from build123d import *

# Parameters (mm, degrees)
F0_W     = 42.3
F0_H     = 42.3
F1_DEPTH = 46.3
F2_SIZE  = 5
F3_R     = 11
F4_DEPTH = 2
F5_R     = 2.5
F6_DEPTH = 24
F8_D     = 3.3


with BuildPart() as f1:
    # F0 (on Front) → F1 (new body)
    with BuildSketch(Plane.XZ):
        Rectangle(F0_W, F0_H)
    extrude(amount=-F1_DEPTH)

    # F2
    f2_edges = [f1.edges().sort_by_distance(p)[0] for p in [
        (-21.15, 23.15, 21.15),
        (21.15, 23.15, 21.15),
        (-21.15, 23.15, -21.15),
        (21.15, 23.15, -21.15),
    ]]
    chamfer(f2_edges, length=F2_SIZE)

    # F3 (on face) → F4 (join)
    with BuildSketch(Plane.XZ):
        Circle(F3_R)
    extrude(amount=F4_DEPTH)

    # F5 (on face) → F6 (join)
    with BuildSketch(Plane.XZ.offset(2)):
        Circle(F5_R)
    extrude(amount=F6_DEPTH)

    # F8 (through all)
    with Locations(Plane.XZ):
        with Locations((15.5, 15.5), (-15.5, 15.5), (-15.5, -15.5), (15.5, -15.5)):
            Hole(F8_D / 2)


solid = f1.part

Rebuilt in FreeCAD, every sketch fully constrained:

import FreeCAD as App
import Part
import Sketcher
from FreeCAD import Vector


def edges_at(feature, points):
    """Names of the edges that pass closest to the given points."""
    edges = feature.Shape.Edges
    near = lambda p: min(range(len(edges)), key=lambda i: edges[i].distToShape(Part.Vertex(*p))[0])
    return sorted({f"Edge{near(p) + 1}" for p in points})

doc = App.newDocument("Part")
body = doc.addObject("PartDesign::Body", "Body")

# Sketch on XZ plane
sketch1 = body.newObject("Sketcher::SketchObject", "Sketch")
sketch1.AttachmentSupport = (doc.getObject("XZ_Plane"), [""])
sketch1.MapMode = "FlatFace"
sketch1.addGeometry([
    Part.LineSegment(Vector(-21.15, 21.15, 0), Vector(-21.15, -21.15, 0)),
    Part.LineSegment(Vector(-21.15, -21.15, 0), Vector(21.15, -21.15, 0)),
    Part.LineSegment(Vector(21.15, -21.15, 0), Vector(21.15, 21.15, 0)),
    Part.LineSegment(Vector(21.15, 21.15, 0), Vector(-21.15, 21.15, 0)),
], False)
sketch1.addConstraint([
    Sketcher.Constraint("Coincident", 0, 2, 1, 1),
    Sketcher.Constraint("Coincident", 1, 2, 2, 1),
    Sketcher.Constraint("Coincident", 2, 2, 3, 1),
    Sketcher.Constraint("Coincident", 3, 2, 0, 1),
    Sketcher.Constraint("Vertical", 0),
    Sketcher.Constraint("Horizontal", 1),
    Sketcher.Constraint("Vertical", 2),
    Sketcher.Constraint("Horizontal", 3),
    Sketcher.Constraint("Symmetric", 0, 2, 2, 2, -1, 1),
    Sketcher.Constraint("Equal", 3, 0),
    Sketcher.Constraint("DistanceX", 1, 1, 1, 2, 42.3),
])
pad1 = body.newObject("PartDesign::Pad", "Pad")
pad1.Profile = sketch1
pad1.Length = 46.3
pad1.Reversed = True
doc.recompute()

chamfer = body.newObject("PartDesign::Chamfer", "Chamfer")
chamfer.Base = (pad1, edges_at(pad1, [
    (-21.15, 23.15, 21.15),
    (21.15, 23.15, 21.15),
    (-21.15, 23.15, -21.15),
    (21.15, 23.15, -21.15),
]))
chamfer.Size = 5

# Sketch on XZ plane
sketch2 = body.newObject("Sketcher::SketchObject", "Sketch001")
sketch2.AttachmentSupport = (doc.getObject("XZ_Plane"), [""])
sketch2.MapMode = "FlatFace"
sketch2.addGeometry(Part.Circle(Vector(0, 0, 0), Vector(0, 0, 1), 11), False)
sketch2.addConstraint([
    Sketcher.Constraint("Coincident", 0, 3, -1, 1),
    Sketcher.Constraint("Diameter", 0, 22.0),
])
pad2 = body.newObject("PartDesign::Pad", "Pad001")
pad2.Profile = sketch2
pad2.Length = 2

# Sketch on XZ plane
sketch3 = body.newObject("Sketcher::SketchObject", "Sketch002")
sketch3.AttachmentSupport = (doc.getObject("XZ_Plane"), [""])
sketch3.MapMode = "FlatFace"
sketch3.AttachmentOffset = App.Placement(Vector(0, 0, 2), App.Rotation())
sketch3.addGeometry(Part.Circle(Vector(0, 0, 0), Vector(0, 0, 1), 2.5), False)
sketch3.addConstraint([
    Sketcher.Constraint("Coincident", 0, 3, -1, 1),
    Sketcher.Constraint("Diameter", 0, 5.0),
])
pad3 = body.newObject("PartDesign::Pad", "Pad002")
pad3.Profile = sketch3
pad3.Length = 24

# Sketch on XZ plane
sketch4 = body.newObject("Sketcher::SketchObject", "Sketch003")
sketch4.AttachmentSupport = (doc.getObject("XZ_Plane"), [""])
sketch4.MapMode = "FlatFace"
sketch4.addGeometry([
    Part.Circle(Vector(15.5, 15.5, 0), Vector(0, 0, 1), 1.65),
    Part.Circle(Vector(-15.5, 15.5, 0), Vector(0, 0, 1), 1.65),
    Part.Circle(Vector(-15.5, -15.5, 0), Vector(0, 0, 1), 1.65),
    Part.Circle(Vector(15.5, -15.5, 0), Vector(0, 0, 1), 1.65),
], False)
sketch4.addConstraint([
    Sketcher.Constraint("Equal", 0, 1),
    Sketcher.Constraint("Equal", 1, 2),
    Sketcher.Constraint("Equal", 2, 3),
    Sketcher.Constraint("Symmetric", 0, 3, 2, 3, -1, 1),
    Sketcher.Constraint("Symmetric", 1, 3, 3, 3, -1, 1),
    Sketcher.Constraint("Symmetric", 0, 3, 1, 3, -2),
    Sketcher.Constraint("Diameter", 0, 3.3),
    Sketcher.Constraint("DistanceX", 1, 3, 0, 3, 31.0),
    Sketcher.Constraint("DistanceY", 2, 3, 1, 3, 31.0),
])
doc.recompute()
hole = body.newObject("PartDesign::Hole", "Hole")
hole.Profile = sketch4
hole.ThreadType = "None"
hole.Diameter = 3.3
hole.DepthType = "ThroughAll"

doc.recompute()
